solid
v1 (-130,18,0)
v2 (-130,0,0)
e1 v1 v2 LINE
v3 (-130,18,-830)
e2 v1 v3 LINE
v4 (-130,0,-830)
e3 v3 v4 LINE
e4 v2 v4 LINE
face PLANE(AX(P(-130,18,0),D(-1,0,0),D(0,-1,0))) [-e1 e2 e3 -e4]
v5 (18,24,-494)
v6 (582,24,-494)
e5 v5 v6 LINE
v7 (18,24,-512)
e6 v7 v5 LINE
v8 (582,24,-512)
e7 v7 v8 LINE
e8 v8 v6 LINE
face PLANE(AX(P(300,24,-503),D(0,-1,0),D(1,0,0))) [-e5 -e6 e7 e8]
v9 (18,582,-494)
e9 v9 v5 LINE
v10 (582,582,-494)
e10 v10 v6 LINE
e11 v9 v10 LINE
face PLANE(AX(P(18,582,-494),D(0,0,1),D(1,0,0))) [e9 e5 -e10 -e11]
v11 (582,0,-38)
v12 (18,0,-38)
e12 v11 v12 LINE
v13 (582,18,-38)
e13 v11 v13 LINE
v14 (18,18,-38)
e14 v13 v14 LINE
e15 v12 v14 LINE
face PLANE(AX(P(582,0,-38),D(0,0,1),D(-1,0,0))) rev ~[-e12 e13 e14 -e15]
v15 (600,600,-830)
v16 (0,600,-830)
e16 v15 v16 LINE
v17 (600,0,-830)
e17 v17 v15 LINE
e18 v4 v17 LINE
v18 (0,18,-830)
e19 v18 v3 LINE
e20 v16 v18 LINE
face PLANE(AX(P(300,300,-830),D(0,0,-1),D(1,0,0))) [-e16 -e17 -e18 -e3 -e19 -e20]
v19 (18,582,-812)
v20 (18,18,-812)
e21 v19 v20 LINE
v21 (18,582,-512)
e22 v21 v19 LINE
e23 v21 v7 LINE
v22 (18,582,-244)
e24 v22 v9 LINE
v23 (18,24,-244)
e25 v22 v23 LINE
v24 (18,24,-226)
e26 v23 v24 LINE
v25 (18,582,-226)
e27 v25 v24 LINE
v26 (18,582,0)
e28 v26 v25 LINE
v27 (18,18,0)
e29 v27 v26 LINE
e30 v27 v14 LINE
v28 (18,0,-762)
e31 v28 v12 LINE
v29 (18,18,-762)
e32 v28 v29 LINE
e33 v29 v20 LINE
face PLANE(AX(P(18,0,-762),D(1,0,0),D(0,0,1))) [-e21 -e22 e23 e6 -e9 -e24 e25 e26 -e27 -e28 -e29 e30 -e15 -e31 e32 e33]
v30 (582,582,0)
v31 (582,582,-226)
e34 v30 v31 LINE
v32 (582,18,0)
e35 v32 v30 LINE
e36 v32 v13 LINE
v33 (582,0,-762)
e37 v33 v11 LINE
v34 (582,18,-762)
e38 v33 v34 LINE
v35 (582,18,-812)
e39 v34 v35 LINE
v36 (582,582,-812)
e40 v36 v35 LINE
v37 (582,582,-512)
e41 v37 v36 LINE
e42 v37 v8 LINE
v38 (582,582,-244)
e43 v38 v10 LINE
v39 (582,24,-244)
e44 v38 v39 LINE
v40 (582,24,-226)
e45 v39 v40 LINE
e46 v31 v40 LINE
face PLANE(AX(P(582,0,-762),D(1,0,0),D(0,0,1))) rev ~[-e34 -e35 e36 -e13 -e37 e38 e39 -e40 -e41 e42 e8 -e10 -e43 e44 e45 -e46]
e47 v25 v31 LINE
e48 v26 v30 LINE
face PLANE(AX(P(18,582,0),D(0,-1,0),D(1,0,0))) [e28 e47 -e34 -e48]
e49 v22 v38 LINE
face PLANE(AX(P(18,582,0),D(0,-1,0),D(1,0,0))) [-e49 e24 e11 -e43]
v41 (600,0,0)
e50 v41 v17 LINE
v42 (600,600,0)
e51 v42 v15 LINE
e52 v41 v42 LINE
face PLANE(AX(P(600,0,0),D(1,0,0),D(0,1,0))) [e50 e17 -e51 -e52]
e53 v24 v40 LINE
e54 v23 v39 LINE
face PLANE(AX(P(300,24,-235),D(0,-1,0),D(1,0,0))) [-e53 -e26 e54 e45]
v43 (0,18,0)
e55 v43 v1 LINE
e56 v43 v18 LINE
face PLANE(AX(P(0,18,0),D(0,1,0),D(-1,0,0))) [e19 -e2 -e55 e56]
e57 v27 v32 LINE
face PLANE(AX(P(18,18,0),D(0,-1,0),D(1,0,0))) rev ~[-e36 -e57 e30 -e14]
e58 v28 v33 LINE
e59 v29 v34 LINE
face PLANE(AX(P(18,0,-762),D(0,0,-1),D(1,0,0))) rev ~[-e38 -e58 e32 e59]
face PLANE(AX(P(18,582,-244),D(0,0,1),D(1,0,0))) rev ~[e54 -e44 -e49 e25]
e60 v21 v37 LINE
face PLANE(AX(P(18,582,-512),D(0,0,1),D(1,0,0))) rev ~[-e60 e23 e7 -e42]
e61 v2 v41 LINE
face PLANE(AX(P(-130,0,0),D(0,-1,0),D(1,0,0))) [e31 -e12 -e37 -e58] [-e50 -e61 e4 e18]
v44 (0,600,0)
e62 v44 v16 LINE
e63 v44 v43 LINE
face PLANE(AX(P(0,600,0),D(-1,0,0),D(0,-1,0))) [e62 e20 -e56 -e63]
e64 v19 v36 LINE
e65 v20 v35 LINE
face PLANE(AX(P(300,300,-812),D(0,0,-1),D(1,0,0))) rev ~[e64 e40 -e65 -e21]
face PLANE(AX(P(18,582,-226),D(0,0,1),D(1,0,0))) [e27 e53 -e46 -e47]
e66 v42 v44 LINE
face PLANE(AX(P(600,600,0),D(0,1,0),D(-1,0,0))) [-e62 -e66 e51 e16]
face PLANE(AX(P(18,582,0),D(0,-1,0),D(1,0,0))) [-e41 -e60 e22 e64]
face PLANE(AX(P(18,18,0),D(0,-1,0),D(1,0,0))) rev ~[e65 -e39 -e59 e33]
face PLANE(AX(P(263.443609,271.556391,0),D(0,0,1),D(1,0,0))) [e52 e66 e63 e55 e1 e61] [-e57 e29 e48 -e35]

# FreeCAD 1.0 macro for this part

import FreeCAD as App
import Part
import Sketcher
from FreeCAD import Vector
Q = App.Units.Quantity

doc = App.newDocument("Part")
body = doc.addObject("PartDesign::Body", "Body")

# Sketch on XY plane
sketch1 = doc.addObject("Sketcher::SketchObject", "Sketch")
body.addObject(sketch1)
sketch1.AttachmentSupport = (doc.XY_Plane, [""])
sketch1.MapMode = "FlatFace"
sketch1.addGeometry([
    Part.LineSegment(Vector(-130, 0, 0), Vector(600, 0, 0)),  # 0
    Part.LineSegment(Vector(600, 0, 0), Vector(600, 600, 0)),  # 1
    Part.LineSegment(Vector(600, 600, 0), Vector(0, 600, 0)),  # 2
    Part.LineSegment(Vector(0, 600, 0), Vector(0, 18, 0)),  # 3
    Part.LineSegment(Vector(0, 18, 0), Vector(-130, 18, 0)),  # 4
    Part.LineSegment(Vector(-130, 18, 0), Vector(-130, 0, 0)),  # 5
    Part.LineSegment(Vector(582, 18, 0), Vector(18, 18, 0)),  # 6
    Part.LineSegment(Vector(18, 18, 0), Vector(18, 582, 0)),  # 7
    Part.LineSegment(Vector(18, 582, 0), Vector(582, 582, 0)),  # 8
    Part.LineSegment(Vector(582, 582, 0), Vector(582, 18, 0)),  # 9
], False)
sketch1.addConstraint([
    Sketcher.Constraint("Coincident", 0, 2, 1, 1),
    Sketcher.Constraint("Coincident", 1, 2, 2, 1),
    Sketcher.Constraint("Coincident", 2, 2, 3, 1),
    Sketcher.Constraint("Coincident", 3, 2, 4, 1),
    Sketcher.Constraint("Coincident", 4, 2, 5, 1),
    Sketcher.Constraint("Coincident", 5, 2, 0, 1),
    Sketcher.Constraint("Coincident", 6, 2, 7, 1),
    Sketcher.Constraint("Coincident", 7, 2, 8, 1),
    Sketcher.Constraint("Coincident", 8, 2, 9, 1),
    Sketcher.Constraint("Coincident", 9, 2, 6, 1),
    Sketcher.Constraint("Horizontal", 0),
    Sketcher.Constraint("Vertical", 1),
    Sketcher.Constraint("Horizontal", 2),
    Sketcher.Constraint("Vertical", 3),
    Sketcher.Constraint("Horizontal", 4),
    Sketcher.Constraint("Vertical", 5),
    Sketcher.Constraint("Horizontal", 6),
    Sketcher.Constraint("Vertical", 7),
    Sketcher.Constraint("Horizontal", 8),
    Sketcher.Constraint("Vertical", 9),
    Sketcher.Constraint("PointOnObject", 0, 2, -1),
    Sketcher.Constraint("PointOnObject", 2, 2, -2),
    Sketcher.Constraint("Horizontal", 4, 2, 6, 2),
    Sketcher.Constraint("Equal", 2, 1),
    Sketcher.Constraint("Equal", 8, 7),
    Sketcher.Constraint("DistanceX", 0, 1, 0, 2, Q("730 mm")),
    Sketcher.Constraint("DistanceX", 2, 2, 2, 1, Q("600 mm")),
    Sketcher.Constraint("DistanceX", 6, 2, 6, 1, Q("564 mm")),
    Sketcher.Constraint("DistanceY", 3, 2, 3, 1, Q("582 mm")),
    Sketcher.Constraint("DistanceX", -1, 1, 6, 2, Q("18 mm")),
])
pad1 = doc.addObject("PartDesign::Pad", "Pad")
body.addObject(pad1)
pad1.Profile = sketch1
pad1.Length = 830
pad1.Reversed = True

# Sketch on XZ plane
sketch2 = doc.addObject("Sketcher::SketchObject", "Sketch001")
body.addObject(sketch2)
sketch2.AttachmentSupport = (doc.XZ_Plane, [""])
sketch2.MapMode = "FlatFace"
sketch2.addGeometry([
    Part.LineSegment(Vector(18, -38, 0), Vector(18, -762, 0)),
    Part.LineSegment(Vector(18, -762, 0), Vector(582, -762, 0)),
    Part.LineSegment(Vector(582, -762, 0), Vector(582, -38, 0)),
    Part.LineSegment(Vector(582, -38, 0), Vector(18, -38, 0)),
], False)
sketch2.addConstraint([
    Sketcher.Constraint("Coincident", 0, 2, 1, 1),
    Sketcher.Constraint("Coincident", 1, 2, 2, 1),
    Sketcher.Constraint("Coincident", 2, 2, 3, 1),
    Sketcher.Constraint("Coincident", 3, 2, 0, 1),
    Sketcher.Constraint("Vertical", 0),
    Sketcher.Constraint("Horizontal", 1),
    Sketcher.Constraint("Vertical", 2),
    Sketcher.Constraint("Horizontal", 3),
    Sketcher.Constraint("DistanceX", 1, 1, 1, 2, Q("564 mm")),
    Sketcher.Constraint("DistanceY", 0, 2, 0, 1, Q("724 mm")),
    Sketcher.Constraint("DistanceX", -1, 1, 0, 2, Q("18 mm")),
    Sketcher.Constraint("DistanceY", 0, 2, -1, 1, Q("762 mm")),
])
pocket1 = doc.addObject("PartDesign::Pocket", "Pocket")
body.addObject(pocket1)
pocket1.Profile = sketch2
pocket1.Length = 244

# Sketch on XY plane
sketch3 = doc.addObject("Sketcher::SketchObject", "Sketch002")
body.addObject(sketch3)
sketch3.AttachmentSupport = (doc.XY_Plane, [""])
sketch3.MapMode = "FlatFace"
sketch3.AttachmentOffset = App.Placement(Vector(0, 0, -830), App.Rotation())
sketch3.addGeometry([
    Part.LineSegment(Vector(18, 18, 0), Vector(18, 582, 0)),
    Part.LineSegment(Vector(18, 582, 0), Vector(582, 582, 0)),
    Part.LineSegment(Vector(582, 582, 0), Vector(582, 18, 0)),
    Part.LineSegment(Vector(582, 18, 0), Vector(18, 18, 0)),
], False)
sketch3.addConstraint([
    Sketcher.Constraint("Coincident", 0, 2, 1, 1),
    Sketcher.Constraint("Coincident", 1, 2, 2, 1),
    Sketcher.Constraint("Coincident", 2, 2, 3, 1),
    Sketcher.Constraint("Coincident", 3, 2, 0, 1),
    Sketcher.Constraint("Vertical", 0),
    Sketcher.Constraint("Horizontal", 1),
    Sketcher.Constraint("Vertical", 2),
    Sketcher.Constraint("Horizontal", 3),
    Sketcher.Constraint("Equal", 3, 0),
    Sketcher.Constraint("DistanceX", 1, 1, 1, 2, Q("564 mm")),
    Sketcher.Constraint("DistanceX", -1, 1, 0, 2, Q("18 mm")),
    Sketcher.Constraint("DistanceY", -1, 1, 0, 2, Q("582 mm")),
])
pad2 = doc.addObject("PartDesign::Pad", "Pad001")
body.addObject(pad2)
pad2.Profile = sketch3
pad2.Length = 18

# Sketch on XZ plane
sketch4 = doc.addObject("Sketcher::SketchObject", "Sketch003")
body.addObject(sketch4)
sketch4.AttachmentSupport = (doc.XZ_Plane, [""])
sketch4.MapMode = "FlatFace"
sketch4.AttachmentOffset = App.Placement(Vector(0, 0, -582), App.Rotation())
sketch4.addGeometry([
    Part.LineSegment(Vector(18, -226, 0), Vector(18, -244, 0)),  # 0
    Part.LineSegment(Vector(18, -244, 0), Vector(582, -244, 0)),  # 1
    Part.LineSegment(Vector(582, -244, 0), Vector(582, -226, 0)),  # 2
    Part.LineSegment(Vector(582, -226, 0), Vector(18, -226, 0)),  # 3
    Part.LineSegment(Vector(18, -494, 0), Vector(18, -512, 0)),  # 4
    Part.LineSegment(Vector(18, -512, 0), Vector(582, -512, 0)),  # 5
    Part.LineSegment(Vector(582, -512, 0), Vector(582, -494, 0)),  # 6
    Part.LineSegment(Vector(582, -494, 0), Vector(18, -494, 0)),  # 7
], False)
sketch4.addConstraint([
    Sketcher.Constraint("Coincident", 0, 2, 1, 1),
    Sketcher.Constraint("Coincident", 1, 2, 2, 1),
    Sketcher.Constraint("Coincident", 2, 2, 3, 1),
    Sketcher.Constraint("Coincident", 3, 2, 0, 1),
    Sketcher.Constraint("Coincident", 4, 2, 5, 1),
    Sketcher.Constraint("Coincident", 5, 2, 6, 1),
    Sketcher.Constraint("Coincident", 6, 2, 7, 1),
    Sketcher.Constraint("Coincident", 7, 2, 4, 1),
    Sketcher.Constraint("Vertical", 0),
    Sketcher.Constraint("Horizontal", 1),
    Sketcher.Constraint("Vertical", 2),
    Sketcher.Constraint("Horizontal", 3),
    Sketcher.Constraint("Vertical", 4),
    Sketcher.Constraint("Horizontal", 5),
    Sketcher.Constraint("Vertical", 6),
    Sketcher.Constraint("Horizontal", 7),
    Sketcher.Constraint("Vertical", 3, 2, 4, 2),
    Sketcher.Constraint("Vertical", 2, 2, 5, 2),
    Sketcher.Constraint("Equal", 2, 4),
    Sketcher.Constraint("DistanceX", 1, 1, 1, 2, Q("564 mm")),
    Sketcher.Constraint("DistanceY", 0, 2, 0, 1, Q("18 mm")),
    Sketcher.Constraint("DistanceX", -1, 1, 0, 2, Q("18 mm")),
    Sketcher.Constraint("DistanceY", 0, 2, -1, 1, Q("244 mm")),
    Sketcher.Constraint("DistanceY", 4, 2, -1, 1, Q("512 mm")),
])
pad3 = doc.addObject("PartDesign::Pad", "Pad002")
body.addObject(pad3)
pad3.Profile = sketch4
pad3.Length = 558

doc.recompute()
